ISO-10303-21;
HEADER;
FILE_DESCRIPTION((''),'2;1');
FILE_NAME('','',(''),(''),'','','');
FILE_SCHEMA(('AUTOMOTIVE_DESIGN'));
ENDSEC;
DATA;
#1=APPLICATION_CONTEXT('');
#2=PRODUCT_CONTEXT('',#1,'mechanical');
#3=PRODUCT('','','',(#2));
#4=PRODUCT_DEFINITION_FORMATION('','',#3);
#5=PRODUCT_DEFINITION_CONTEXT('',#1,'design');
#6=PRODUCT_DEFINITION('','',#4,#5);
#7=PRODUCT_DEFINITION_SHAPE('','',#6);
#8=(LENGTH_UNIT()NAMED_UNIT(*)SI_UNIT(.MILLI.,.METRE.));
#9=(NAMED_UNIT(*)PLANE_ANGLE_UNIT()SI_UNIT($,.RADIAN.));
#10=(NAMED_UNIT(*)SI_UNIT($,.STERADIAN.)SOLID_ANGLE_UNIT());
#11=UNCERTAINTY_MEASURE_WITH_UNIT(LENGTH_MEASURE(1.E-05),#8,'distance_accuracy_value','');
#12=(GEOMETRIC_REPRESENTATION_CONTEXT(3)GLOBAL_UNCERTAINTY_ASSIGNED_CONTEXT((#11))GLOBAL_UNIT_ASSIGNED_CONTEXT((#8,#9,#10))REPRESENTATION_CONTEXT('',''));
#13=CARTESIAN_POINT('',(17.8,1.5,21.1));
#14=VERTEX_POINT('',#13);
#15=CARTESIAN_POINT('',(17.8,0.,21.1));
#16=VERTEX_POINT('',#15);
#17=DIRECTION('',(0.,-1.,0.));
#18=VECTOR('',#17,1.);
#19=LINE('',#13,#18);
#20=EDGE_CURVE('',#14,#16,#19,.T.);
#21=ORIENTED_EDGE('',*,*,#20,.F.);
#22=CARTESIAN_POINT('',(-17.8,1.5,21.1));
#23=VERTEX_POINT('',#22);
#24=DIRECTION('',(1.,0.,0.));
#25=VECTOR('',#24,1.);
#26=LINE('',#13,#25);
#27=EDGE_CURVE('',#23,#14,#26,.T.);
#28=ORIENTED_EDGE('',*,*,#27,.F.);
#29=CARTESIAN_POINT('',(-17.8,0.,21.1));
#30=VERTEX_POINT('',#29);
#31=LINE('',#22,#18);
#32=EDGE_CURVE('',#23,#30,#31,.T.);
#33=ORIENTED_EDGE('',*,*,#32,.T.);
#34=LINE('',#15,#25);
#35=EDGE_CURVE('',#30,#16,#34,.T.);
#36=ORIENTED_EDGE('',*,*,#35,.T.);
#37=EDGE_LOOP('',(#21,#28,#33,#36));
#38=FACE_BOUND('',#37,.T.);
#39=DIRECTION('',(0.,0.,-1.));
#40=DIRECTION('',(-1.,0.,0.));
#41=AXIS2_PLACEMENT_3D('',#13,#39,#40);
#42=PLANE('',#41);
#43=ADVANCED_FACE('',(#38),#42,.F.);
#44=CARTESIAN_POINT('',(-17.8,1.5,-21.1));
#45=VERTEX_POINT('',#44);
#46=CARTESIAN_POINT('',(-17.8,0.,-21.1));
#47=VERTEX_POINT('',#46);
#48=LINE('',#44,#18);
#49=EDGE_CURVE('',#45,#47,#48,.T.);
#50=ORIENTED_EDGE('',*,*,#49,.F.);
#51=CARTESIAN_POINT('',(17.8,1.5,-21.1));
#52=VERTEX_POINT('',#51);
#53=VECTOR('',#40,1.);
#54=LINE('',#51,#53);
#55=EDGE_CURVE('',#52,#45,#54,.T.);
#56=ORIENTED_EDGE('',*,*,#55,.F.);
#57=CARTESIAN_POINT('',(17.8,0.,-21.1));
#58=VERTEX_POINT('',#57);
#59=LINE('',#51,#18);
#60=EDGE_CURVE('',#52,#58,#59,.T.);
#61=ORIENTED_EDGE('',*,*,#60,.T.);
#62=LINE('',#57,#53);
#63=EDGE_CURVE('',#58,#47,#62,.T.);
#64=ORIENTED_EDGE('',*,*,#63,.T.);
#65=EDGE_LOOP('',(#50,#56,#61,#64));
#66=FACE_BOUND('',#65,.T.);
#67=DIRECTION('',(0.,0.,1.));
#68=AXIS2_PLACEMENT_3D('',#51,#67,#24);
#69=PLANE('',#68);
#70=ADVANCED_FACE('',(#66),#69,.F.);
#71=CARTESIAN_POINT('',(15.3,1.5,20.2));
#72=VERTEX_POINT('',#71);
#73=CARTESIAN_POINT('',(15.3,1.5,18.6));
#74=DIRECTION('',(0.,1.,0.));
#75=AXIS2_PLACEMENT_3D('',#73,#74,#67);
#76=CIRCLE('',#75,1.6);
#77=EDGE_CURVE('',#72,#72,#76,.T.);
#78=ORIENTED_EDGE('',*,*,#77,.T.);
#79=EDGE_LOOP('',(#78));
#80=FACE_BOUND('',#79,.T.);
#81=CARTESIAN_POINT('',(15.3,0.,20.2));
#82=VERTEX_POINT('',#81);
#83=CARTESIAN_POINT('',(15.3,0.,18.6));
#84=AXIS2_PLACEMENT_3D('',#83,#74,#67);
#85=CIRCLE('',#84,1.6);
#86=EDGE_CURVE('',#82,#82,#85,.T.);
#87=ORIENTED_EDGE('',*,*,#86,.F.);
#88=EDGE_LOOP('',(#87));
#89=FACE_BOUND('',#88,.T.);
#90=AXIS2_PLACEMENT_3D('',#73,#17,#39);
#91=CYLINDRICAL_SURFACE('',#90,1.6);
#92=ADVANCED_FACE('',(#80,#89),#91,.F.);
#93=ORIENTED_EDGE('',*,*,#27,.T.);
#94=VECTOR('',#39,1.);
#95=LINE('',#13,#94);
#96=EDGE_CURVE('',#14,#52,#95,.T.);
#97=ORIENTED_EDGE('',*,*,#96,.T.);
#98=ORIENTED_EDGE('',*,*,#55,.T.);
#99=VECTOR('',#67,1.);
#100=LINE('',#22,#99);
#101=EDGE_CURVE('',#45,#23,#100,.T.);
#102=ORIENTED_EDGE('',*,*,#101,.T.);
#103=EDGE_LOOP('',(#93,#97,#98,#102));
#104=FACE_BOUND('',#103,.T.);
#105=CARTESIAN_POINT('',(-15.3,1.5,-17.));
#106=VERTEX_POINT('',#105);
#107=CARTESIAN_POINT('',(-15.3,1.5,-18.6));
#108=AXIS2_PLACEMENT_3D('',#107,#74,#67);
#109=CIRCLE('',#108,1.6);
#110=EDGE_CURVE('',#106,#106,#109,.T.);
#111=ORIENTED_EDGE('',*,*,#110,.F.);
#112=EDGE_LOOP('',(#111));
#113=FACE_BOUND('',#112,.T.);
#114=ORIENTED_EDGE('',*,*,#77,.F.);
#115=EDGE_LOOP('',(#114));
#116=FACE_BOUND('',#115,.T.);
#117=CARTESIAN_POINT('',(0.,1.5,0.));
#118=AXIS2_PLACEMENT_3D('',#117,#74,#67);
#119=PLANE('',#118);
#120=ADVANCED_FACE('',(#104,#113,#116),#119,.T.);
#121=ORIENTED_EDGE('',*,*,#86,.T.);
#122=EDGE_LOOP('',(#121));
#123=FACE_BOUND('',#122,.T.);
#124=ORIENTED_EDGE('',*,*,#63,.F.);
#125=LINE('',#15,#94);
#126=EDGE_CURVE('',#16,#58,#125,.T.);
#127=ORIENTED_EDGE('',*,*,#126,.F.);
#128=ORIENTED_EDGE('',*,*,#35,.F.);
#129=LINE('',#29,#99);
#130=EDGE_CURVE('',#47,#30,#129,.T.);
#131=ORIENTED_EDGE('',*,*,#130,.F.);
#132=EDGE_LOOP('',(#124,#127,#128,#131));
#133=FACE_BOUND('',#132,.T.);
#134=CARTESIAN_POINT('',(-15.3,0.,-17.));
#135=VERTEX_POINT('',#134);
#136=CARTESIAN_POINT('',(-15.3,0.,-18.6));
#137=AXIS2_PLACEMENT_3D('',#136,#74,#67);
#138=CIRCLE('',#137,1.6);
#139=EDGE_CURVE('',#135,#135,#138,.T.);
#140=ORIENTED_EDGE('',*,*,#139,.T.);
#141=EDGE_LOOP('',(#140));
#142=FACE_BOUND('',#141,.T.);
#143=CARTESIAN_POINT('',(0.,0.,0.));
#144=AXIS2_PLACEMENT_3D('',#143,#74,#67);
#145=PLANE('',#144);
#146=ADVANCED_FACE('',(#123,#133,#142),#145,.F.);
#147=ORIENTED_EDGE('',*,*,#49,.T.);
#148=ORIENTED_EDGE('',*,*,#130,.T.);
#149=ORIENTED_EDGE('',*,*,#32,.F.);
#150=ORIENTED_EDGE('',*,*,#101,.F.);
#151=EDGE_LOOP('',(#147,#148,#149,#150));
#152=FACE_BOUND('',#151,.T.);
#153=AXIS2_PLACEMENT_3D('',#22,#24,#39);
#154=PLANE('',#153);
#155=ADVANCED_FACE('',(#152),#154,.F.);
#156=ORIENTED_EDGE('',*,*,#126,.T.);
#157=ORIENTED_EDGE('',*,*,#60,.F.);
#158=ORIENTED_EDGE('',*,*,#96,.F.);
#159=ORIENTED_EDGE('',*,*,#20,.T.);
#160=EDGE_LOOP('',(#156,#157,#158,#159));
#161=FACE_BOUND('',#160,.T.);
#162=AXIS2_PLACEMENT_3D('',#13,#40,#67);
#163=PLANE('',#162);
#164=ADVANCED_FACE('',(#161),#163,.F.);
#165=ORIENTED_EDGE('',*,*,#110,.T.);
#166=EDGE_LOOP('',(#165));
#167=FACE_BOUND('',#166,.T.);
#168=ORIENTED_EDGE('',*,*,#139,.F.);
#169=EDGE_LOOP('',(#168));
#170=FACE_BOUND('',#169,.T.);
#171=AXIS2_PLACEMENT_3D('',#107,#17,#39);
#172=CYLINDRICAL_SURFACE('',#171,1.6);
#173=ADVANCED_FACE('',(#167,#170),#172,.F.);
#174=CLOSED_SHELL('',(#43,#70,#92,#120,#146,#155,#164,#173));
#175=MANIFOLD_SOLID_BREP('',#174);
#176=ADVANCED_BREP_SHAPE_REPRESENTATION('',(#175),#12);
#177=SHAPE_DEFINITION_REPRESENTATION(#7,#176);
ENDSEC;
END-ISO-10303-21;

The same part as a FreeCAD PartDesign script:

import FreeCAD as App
import Part
import Sketcher
Q = App.Units.Quantity


def add_polygon(sketch, points):
    """Adds a closed chain of lines whose ends are joined by coincident constraints."""
    first, n = sketch.GeometryCount, len(points)
    for a, b in zip(points, points[1:] + points[:1]):
        sketch.addGeometry(Part.LineSegment(App.Vector(*a, 0), App.Vector(*b, 0)), False)
    for i in range(n):
        sketch.addConstraint(Sketcher.Constraint("Coincident", first + i, 2, first + (i + 1) % n, 1))

doc = App.newDocument("Part")
body = doc.addObject("PartDesign::Body", "Body")

# Sketch on XZ plane
sketch1 = body.newObject("Sketcher::SketchObject", "Sketch")
sketch1.AttachmentSupport = (doc.getObject("XZ_Plane"), [""])
sketch1.MapMode = "FlatFace"
add_polygon(sketch1, [(-17.8, -21.1), (-17.8, 21.1), (17.8, 21.1), (17.8, -21.1)])  # lines 0-3
sketch1.addGeometry(Part.Circle(App.Vector(15.3, 18.6, 0), App.Vector(0, 0, 1), 1.6), False)  # 4
sketch1.addGeometry(Part.Circle(App.Vector(-15.3, -18.6, 0), App.Vector(0, 0, 1), 1.6), False)  # 5
sketch1.addConstraint([
    Sketcher.Constraint("Vertical", 0),
    Sketcher.Constraint("Horizontal", 1),
    Sketcher.Constraint("Vertical", 2),
    Sketcher.Constraint("Horizontal", 3),
    Sketcher.Constraint("Equal", 4, 5),
    Sketcher.Constraint("Symmetric", 4, 3, 5, 3, -1, 1),
    Sketcher.Constraint("Symmetric", 0, 2, 2, 2, -1, 1),
    Sketcher.Constraint("Diameter", 4, Q("3.2 mm")),
    Sketcher.Constraint("DistanceX", 1, 1, 1, 2, Q("35.6 mm")),
    Sketcher.Constraint("DistanceY", 0, 1, 0, 2, Q("42.2 mm")),
    Sketcher.Constraint("DistanceX", -1, 1, 4, 3, Q("15.3 mm")),
    Sketcher.Constraint("DistanceY", -1, 1, 4, 3, Q("18.6 mm")),
])
pad1 = body.newObject("PartDesign::Pad", "Pad")
pad1.Profile = sketch1
pad1.Length = 1.5
pad1.Reversed = True

doc.recompute()
